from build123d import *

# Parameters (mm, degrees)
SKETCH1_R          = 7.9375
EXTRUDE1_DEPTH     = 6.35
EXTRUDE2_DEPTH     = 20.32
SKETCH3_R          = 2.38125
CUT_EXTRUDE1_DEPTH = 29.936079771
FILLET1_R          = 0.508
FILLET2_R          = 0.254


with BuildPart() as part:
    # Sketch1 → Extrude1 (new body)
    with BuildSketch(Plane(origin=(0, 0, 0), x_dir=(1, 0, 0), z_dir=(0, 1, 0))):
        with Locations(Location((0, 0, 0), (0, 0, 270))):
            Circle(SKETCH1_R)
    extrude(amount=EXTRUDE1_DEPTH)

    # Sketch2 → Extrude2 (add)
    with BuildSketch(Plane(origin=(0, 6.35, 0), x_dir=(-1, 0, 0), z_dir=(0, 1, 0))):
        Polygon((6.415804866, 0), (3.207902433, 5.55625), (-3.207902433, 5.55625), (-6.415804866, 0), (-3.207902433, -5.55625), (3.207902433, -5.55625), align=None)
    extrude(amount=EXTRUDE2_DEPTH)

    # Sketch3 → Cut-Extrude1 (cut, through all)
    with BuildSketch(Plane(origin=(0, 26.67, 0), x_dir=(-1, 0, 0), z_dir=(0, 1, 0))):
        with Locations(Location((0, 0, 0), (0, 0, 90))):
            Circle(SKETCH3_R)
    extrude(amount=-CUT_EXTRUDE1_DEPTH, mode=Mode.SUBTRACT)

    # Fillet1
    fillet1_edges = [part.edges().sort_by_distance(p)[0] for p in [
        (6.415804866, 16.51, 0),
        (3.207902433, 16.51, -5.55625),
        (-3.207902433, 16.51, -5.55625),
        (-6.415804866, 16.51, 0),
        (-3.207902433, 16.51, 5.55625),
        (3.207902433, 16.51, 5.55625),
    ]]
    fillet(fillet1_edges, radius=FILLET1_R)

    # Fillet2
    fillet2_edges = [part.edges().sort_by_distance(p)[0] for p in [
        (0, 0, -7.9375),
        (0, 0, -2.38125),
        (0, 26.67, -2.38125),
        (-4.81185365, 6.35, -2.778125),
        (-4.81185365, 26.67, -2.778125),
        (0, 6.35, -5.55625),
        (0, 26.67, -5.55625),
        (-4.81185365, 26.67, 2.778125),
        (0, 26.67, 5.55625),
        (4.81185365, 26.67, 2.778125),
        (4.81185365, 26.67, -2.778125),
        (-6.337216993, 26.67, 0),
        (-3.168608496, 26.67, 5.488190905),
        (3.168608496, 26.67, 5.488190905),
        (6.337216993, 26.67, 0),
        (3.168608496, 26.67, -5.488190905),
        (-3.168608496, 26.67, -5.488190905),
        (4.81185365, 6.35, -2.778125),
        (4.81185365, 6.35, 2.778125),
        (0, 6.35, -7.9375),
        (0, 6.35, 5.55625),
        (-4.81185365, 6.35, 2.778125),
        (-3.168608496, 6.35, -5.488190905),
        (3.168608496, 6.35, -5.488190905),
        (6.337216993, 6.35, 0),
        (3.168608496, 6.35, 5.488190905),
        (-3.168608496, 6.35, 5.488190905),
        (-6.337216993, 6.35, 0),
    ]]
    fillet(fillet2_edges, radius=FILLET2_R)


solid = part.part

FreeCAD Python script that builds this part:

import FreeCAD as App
import Part
import Sketcher
from FreeCAD import Vector
Q = App.Units.Quantity


def edges_at(feature, points):
    """Names of the edges that pass closest to the given points."""
    edges = feature.Shape.Edges
    near = lambda p: min(range(len(edges)), key=lambda i: edges[i].distToShape(Part.Vertex(*p))[0])
    return sorted({f"Edge{near(p) + 1}" for p in points})


def add_polygon(sketch, points):
    """Adds a closed chain of lines whose ends are joined by coincident constraints."""
    first, n = sketch.GeometryCount, len(points)
    for a, b in zip(points, points[1:] + points[:1]):
        sketch.addGeometry(Part.LineSegment(App.Vector(*a, 0), App.Vector(*b, 0)), False)
    for i in range(n):
        sketch.addConstraint(Sketcher.Constraint("Coincident", first + i, 2, first + (i + 1) % n, 1))

doc = App.newDocument("Part")
params = doc.addObject("Spreadsheet::Sheet", "Params")
for row, (alias, value) in enumerate([
    ("sketch1_diameter", "0.625 in"),
    ("pad1_length", "0.25 in"),
    ("pad2_length", "0.8 in"),
    ("sketch3_diameter", "0.1875 in"),
    ("fillet_radius", "0.02 in"),
    ("fillet2_radius", "0.01 in"),
], start=1):
    params.set(f"A{row}", alias)
    params.set(f"B{row}", "=" + value)
    params.setAlias(f"B{row}", alias)

body = doc.addObject("PartDesign::Body", "Body")

sketch1 = body.newObject("Sketcher::SketchObject", "Sketch")
sketch1.AttachmentSupport = (doc.getObject("XZ_Plane"), [""])
sketch1.MapMode = "FlatFace"
sketch1.addGeometry(Part.Circle(Vector(0, 0, 0), Vector(0, 0, 1), 8), False)
sketch1.addConstraint([
    Sketcher.Constraint("Coincident", 0, 3, -1, 1),
    Sketcher.Constraint("Diameter", 0, Q("0.625 in")),
])
sketch1.setExpression("Constraints[1]", "Params.sketch1_diameter")
pad1 = body.newObject("PartDesign::Pad", "Pad")
pad1.Profile = sketch1
pad1.setExpression("Length", "Params.pad1_length")
pad1.Reversed = True

sketch2 = body.newObject("Sketcher::SketchObject", "Sketch001")
sketch2.AttachmentSupport = (doc.getObject("XZ_Plane"), [""])
sketch2.MapMode = "FlatFace"
sketch2.AttachmentOffset = App.Placement(Vector(0, 0, -0.25 * 25.4), App.Rotation())
add_polygon(sketch2, [(-6, 0), (-3, 6), (3, 6), (6, 0), (3, -6), (-3, -6)])
sketch2.addConstraint([
    Sketcher.Constraint("Horizontal", 1),
    Sketcher.Constraint("Horizontal", 4),
    Sketcher.Constraint("Symmetric", 0, 2, 3, 2, -1, 1),
    Sketcher.Constraint("Symmetric", 2, 2, 5, 2, -1, 1),
    Sketcher.Constraint("PointOnObject", 2, 2, -1),
    Sketcher.Constraint("Parallel", 2, 5),
    Sketcher.Constraint("Vertical", 1, 2, 3, 2),
    Sketcher.Constraint("Angle", 0, Q("60 deg")),
    Sketcher.Constraint("DistanceY", -1, 1, 0, 2, Q("0.21875 in")),
    Sketcher.Constraint("DistanceX", 1, 1, 1, 2, Q("6.415805 mm")),
])
pad2 = body.newObject("PartDesign::Pad", "Pad001")
pad2.Profile = sketch2
pad2.setExpression("Length", "Params.pad2_length")
pad2.Reversed = True

sketch3 = body.newObject("Sketcher::SketchObject", "Sketch002")
sketch3.AttachmentSupport = (doc.getObject("XZ_Plane"), [""])
sketch3.MapMode = "FlatFace"
sketch3.AttachmentOffset = App.Placement(Vector(0, 0, -1.05 * 25.4), App.Rotation())
sketch3.addGeometry(Part.Circle(Vector(0, 0, 0), Vector(0, 0, 1), 2.4), False)
sketch3.addConstraint([
    Sketcher.Constraint("Coincident", 0, 3, -1, 1),
    Sketcher.Constraint("Diameter", 0, Q("0.1875 in")),
])
sketch3.setExpression("Constraints[1]", "Params.sketch3_diameter")
pocket1 = body.newObject("PartDesign::Pocket", "Pocket")
pocket1.Profile = sketch3
pocket1.Type = "ThroughAll"
pocket1.Reversed = True
doc.recompute()

fillet = body.newObject("PartDesign::Fillet", "Fillet")
fillet.Base = (pocket1, edges_at(pocket1, [
    (6.416, 16.51, 0),
    (3.208, 16.51, -5.556),
    (-3.208, 16.51, -5.556),
    (-6.416, 16.51, 0),
    (-3.208, 16.51, 5.556),
    (3.208, 16.51, 5.556),
]))
fillet.setExpression("Radius", "Params.fillet_radius")
doc.recompute()

fillet2 = body.newObject("PartDesign::Fillet", "Fillet001")
fillet2.Base = (fillet, edges_at(fillet, [
    (0, 0, -7.938),
    (0, 0, -2.381),
    (0, 26.67, -2.381),
    (-4.812, 6.35, -2.778),
    (-4.812, 26.67, -2.778),
    (0, 6.35, -5.556),
    (0, 26.67, -5.556),
    (-4.812, 26.67, 2.778),
    (0, 26.67, 5.556),
    (4.812, 26.67, 2.778),
    (4.812, 26.67, -2.778),
    (-6.337, 26.67, 0),
    (-3.169, 26.67, 5.488),
    (3.169, 26.67, 5.488),
    (6.337, 26.67, 0),
    (3.169, 26.67, -5.488),
    (-3.169, 26.67, -5.488),
    (4.812, 6.35, -2.778),
    (4.812, 6.35, 2.778),
    (0, 6.35, -7.938),
    (0, 6.35, 5.556),
    (-4.812, 6.35, 2.778),
    (-3.169, 6.35, -5.488),
    (3.169, 6.35, -5.488),
    (6.337, 6.35, 0),
    (3.169, 6.35, 5.488),
    (-3.169, 6.35, 5.488),
    (-6.337, 6.35, 0),
]))
fillet2.setExpression("Radius", "Params.fillet2_radius")

doc.recompute()
